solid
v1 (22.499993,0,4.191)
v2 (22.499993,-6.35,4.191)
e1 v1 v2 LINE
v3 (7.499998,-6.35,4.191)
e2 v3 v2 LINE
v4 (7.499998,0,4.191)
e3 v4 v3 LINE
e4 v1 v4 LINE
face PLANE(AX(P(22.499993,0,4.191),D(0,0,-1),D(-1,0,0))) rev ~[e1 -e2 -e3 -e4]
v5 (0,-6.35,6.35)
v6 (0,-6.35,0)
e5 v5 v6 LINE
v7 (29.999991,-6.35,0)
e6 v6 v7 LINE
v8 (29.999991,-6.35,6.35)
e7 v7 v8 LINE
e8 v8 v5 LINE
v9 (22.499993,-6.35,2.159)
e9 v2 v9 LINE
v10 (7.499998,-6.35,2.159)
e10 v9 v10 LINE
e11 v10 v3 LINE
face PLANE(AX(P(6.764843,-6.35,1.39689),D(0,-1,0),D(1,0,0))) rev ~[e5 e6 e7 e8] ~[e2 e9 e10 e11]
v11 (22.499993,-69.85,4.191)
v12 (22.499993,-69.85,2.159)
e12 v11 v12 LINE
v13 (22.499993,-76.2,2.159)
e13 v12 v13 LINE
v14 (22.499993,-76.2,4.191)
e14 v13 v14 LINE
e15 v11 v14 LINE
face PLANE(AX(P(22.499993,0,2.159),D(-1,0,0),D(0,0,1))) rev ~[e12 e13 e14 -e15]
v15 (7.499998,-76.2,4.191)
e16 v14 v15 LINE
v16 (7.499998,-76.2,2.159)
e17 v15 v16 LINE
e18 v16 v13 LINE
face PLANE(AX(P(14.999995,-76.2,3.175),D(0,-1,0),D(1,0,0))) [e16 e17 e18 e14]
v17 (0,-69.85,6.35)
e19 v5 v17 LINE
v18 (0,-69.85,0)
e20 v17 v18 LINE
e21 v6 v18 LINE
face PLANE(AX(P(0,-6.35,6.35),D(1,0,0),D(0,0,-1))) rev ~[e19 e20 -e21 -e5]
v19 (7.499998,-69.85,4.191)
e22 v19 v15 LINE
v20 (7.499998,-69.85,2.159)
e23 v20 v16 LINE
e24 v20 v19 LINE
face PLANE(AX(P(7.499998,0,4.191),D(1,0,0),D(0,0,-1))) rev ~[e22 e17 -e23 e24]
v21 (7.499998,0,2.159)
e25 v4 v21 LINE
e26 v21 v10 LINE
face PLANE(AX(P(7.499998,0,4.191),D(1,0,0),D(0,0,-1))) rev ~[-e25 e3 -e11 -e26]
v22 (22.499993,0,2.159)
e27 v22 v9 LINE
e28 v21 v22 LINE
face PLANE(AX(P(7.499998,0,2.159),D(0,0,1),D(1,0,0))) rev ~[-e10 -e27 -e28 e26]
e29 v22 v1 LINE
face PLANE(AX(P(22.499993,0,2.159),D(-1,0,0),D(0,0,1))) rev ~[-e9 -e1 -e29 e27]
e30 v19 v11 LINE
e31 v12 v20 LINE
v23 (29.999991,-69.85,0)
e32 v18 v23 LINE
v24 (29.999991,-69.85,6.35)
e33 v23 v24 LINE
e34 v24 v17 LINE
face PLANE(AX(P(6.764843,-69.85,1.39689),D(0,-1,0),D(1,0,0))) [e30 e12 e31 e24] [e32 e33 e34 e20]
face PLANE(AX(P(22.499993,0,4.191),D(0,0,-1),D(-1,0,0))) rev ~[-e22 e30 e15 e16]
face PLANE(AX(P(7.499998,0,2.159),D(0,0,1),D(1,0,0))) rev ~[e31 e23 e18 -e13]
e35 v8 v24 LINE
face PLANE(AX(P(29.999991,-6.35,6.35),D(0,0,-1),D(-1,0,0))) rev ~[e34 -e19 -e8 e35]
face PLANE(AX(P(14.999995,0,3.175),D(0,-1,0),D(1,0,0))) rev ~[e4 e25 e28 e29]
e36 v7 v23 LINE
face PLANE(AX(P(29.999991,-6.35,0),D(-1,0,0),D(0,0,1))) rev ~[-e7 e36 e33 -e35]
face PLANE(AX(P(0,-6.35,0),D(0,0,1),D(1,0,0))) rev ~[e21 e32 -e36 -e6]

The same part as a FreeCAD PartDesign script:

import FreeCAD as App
import Part
import Sketcher
Q = App.Units.Quantity


def add_polygon(sketch, points):
    """Adds a closed chain of lines whose ends are joined by coincident constraints."""
    first, n = sketch.GeometryCount, len(points)
    for a, b in zip(points, points[1:] + points[:1]):
        sketch.addGeometry(Part.LineSegment(App.Vector(*a, 0), App.Vector(*b, 0)), False)
    for i in range(n):
        sketch.addConstraint(Sketcher.Constraint("Coincident", first + i, 2, first + (i + 1) % n, 1))

doc = App.newDocument("Part")
body = doc.addObject("PartDesign::Body", "Body")

# Sketch on XZ plane
sketch1 = doc.addObject("Sketcher::SketchObject", "Sketch")
body.addObject(sketch1)
sketch1.AttachmentSupport = (doc.XZ_Plane, [""])
sketch1.MapMode = "FlatFace"
sketch1.AttachmentOffset = App.Placement(App.Vector(0, 0, 0.25 * 25.4), App.Rotation())
add_polygon(sketch1, [(0, 0), (30, 0), (30, 6.3), (0, 6.3)])  # lines 0-3
add_polygon(sketch1, [(22.5, 4.2), (22.5, 2.2), (7.5, 2.2), (7.5, 4.2)])  # lines 4-7
sketch1.addConstraint([
    Sketcher.Constraint("Horizontal", 0),
    Sketcher.Constraint("Vertical", 1),
    Sketcher.Constraint("Horizontal", 2),
    Sketcher.Constraint("Vertical", 3),
    Sketcher.Constraint("Vertical", 4),
    Sketcher.Constraint("Horizontal", 5),
    Sketcher.Constraint("Vertical", 6),
    Sketcher.Constraint("Horizontal", 7),
    Sketcher.Constraint("Coincident", 3, 2, -1, 1),
    Sketcher.Constraint("DistanceY", 1, 1, 1, 2, Q("0.25 in")),
    Sketcher.Constraint("DistanceY", 4, 2, 4, 1, Q("0.08 in")),
    Sketcher.Constraint("DistanceY", -1, 1, 4, 2, Q("0.085 in")),
    Sketcher.Constraint("DistanceX", 0, 1, 0, 2, Q("29.999991 mm")),
    Sketcher.Constraint("DistanceX", 5, 2, 5, 1, Q("14.999995 mm")),
    Sketcher.Constraint("DistanceX", -1, 1, 4, 2, Q("22.499993 mm")),
])
pad1 = doc.addObject("PartDesign::Pad", "Pad")
body.addObject(pad1)
pad1.Profile = sketch1
pad1.Length = Q("2.5 in")

# Sketch on XZ plane
sketch2 = doc.addObject("Sketcher::SketchObject", "Sketch001")
body.addObject(sketch2)
sketch2.AttachmentSupport = (doc.XZ_Plane, [""])
sketch2.MapMode = "FlatFace"
add_polygon(sketch2, [(7.5, 2.2), (22.5, 2.2), (22.5, 4.2), (7.5, 4.2)])  # lines 0-3
sketch2.addConstraint([
    Sketcher.Constraint("Horizontal", 0),
    Sketcher.Constraint("Vertical", 1),
    Sketcher.Constraint("Horizontal", 2),
    Sketcher.Constraint("Vertical", 3),
    Sketcher.Constraint("DistanceY", 1, 1, 1, 2, Q("0.08 in")),
    Sketcher.Constraint("DistanceY", -1, 1, 0, 2, Q("0.085 in")),
    Sketcher.Constraint("DistanceX", 0, 1, 0, 2, Q("14.999995 mm")),
    Sketcher.Constraint("DistanceX", -1, 1, 0, 2, Q("22.499993 mm")),
])
pad2 = doc.addObject("PartDesign::Pad", "Pad001")
body.addObject(pad2)
pad2.Profile = sketch2
pad2.Length = Q("3 in")

doc.recompute()
